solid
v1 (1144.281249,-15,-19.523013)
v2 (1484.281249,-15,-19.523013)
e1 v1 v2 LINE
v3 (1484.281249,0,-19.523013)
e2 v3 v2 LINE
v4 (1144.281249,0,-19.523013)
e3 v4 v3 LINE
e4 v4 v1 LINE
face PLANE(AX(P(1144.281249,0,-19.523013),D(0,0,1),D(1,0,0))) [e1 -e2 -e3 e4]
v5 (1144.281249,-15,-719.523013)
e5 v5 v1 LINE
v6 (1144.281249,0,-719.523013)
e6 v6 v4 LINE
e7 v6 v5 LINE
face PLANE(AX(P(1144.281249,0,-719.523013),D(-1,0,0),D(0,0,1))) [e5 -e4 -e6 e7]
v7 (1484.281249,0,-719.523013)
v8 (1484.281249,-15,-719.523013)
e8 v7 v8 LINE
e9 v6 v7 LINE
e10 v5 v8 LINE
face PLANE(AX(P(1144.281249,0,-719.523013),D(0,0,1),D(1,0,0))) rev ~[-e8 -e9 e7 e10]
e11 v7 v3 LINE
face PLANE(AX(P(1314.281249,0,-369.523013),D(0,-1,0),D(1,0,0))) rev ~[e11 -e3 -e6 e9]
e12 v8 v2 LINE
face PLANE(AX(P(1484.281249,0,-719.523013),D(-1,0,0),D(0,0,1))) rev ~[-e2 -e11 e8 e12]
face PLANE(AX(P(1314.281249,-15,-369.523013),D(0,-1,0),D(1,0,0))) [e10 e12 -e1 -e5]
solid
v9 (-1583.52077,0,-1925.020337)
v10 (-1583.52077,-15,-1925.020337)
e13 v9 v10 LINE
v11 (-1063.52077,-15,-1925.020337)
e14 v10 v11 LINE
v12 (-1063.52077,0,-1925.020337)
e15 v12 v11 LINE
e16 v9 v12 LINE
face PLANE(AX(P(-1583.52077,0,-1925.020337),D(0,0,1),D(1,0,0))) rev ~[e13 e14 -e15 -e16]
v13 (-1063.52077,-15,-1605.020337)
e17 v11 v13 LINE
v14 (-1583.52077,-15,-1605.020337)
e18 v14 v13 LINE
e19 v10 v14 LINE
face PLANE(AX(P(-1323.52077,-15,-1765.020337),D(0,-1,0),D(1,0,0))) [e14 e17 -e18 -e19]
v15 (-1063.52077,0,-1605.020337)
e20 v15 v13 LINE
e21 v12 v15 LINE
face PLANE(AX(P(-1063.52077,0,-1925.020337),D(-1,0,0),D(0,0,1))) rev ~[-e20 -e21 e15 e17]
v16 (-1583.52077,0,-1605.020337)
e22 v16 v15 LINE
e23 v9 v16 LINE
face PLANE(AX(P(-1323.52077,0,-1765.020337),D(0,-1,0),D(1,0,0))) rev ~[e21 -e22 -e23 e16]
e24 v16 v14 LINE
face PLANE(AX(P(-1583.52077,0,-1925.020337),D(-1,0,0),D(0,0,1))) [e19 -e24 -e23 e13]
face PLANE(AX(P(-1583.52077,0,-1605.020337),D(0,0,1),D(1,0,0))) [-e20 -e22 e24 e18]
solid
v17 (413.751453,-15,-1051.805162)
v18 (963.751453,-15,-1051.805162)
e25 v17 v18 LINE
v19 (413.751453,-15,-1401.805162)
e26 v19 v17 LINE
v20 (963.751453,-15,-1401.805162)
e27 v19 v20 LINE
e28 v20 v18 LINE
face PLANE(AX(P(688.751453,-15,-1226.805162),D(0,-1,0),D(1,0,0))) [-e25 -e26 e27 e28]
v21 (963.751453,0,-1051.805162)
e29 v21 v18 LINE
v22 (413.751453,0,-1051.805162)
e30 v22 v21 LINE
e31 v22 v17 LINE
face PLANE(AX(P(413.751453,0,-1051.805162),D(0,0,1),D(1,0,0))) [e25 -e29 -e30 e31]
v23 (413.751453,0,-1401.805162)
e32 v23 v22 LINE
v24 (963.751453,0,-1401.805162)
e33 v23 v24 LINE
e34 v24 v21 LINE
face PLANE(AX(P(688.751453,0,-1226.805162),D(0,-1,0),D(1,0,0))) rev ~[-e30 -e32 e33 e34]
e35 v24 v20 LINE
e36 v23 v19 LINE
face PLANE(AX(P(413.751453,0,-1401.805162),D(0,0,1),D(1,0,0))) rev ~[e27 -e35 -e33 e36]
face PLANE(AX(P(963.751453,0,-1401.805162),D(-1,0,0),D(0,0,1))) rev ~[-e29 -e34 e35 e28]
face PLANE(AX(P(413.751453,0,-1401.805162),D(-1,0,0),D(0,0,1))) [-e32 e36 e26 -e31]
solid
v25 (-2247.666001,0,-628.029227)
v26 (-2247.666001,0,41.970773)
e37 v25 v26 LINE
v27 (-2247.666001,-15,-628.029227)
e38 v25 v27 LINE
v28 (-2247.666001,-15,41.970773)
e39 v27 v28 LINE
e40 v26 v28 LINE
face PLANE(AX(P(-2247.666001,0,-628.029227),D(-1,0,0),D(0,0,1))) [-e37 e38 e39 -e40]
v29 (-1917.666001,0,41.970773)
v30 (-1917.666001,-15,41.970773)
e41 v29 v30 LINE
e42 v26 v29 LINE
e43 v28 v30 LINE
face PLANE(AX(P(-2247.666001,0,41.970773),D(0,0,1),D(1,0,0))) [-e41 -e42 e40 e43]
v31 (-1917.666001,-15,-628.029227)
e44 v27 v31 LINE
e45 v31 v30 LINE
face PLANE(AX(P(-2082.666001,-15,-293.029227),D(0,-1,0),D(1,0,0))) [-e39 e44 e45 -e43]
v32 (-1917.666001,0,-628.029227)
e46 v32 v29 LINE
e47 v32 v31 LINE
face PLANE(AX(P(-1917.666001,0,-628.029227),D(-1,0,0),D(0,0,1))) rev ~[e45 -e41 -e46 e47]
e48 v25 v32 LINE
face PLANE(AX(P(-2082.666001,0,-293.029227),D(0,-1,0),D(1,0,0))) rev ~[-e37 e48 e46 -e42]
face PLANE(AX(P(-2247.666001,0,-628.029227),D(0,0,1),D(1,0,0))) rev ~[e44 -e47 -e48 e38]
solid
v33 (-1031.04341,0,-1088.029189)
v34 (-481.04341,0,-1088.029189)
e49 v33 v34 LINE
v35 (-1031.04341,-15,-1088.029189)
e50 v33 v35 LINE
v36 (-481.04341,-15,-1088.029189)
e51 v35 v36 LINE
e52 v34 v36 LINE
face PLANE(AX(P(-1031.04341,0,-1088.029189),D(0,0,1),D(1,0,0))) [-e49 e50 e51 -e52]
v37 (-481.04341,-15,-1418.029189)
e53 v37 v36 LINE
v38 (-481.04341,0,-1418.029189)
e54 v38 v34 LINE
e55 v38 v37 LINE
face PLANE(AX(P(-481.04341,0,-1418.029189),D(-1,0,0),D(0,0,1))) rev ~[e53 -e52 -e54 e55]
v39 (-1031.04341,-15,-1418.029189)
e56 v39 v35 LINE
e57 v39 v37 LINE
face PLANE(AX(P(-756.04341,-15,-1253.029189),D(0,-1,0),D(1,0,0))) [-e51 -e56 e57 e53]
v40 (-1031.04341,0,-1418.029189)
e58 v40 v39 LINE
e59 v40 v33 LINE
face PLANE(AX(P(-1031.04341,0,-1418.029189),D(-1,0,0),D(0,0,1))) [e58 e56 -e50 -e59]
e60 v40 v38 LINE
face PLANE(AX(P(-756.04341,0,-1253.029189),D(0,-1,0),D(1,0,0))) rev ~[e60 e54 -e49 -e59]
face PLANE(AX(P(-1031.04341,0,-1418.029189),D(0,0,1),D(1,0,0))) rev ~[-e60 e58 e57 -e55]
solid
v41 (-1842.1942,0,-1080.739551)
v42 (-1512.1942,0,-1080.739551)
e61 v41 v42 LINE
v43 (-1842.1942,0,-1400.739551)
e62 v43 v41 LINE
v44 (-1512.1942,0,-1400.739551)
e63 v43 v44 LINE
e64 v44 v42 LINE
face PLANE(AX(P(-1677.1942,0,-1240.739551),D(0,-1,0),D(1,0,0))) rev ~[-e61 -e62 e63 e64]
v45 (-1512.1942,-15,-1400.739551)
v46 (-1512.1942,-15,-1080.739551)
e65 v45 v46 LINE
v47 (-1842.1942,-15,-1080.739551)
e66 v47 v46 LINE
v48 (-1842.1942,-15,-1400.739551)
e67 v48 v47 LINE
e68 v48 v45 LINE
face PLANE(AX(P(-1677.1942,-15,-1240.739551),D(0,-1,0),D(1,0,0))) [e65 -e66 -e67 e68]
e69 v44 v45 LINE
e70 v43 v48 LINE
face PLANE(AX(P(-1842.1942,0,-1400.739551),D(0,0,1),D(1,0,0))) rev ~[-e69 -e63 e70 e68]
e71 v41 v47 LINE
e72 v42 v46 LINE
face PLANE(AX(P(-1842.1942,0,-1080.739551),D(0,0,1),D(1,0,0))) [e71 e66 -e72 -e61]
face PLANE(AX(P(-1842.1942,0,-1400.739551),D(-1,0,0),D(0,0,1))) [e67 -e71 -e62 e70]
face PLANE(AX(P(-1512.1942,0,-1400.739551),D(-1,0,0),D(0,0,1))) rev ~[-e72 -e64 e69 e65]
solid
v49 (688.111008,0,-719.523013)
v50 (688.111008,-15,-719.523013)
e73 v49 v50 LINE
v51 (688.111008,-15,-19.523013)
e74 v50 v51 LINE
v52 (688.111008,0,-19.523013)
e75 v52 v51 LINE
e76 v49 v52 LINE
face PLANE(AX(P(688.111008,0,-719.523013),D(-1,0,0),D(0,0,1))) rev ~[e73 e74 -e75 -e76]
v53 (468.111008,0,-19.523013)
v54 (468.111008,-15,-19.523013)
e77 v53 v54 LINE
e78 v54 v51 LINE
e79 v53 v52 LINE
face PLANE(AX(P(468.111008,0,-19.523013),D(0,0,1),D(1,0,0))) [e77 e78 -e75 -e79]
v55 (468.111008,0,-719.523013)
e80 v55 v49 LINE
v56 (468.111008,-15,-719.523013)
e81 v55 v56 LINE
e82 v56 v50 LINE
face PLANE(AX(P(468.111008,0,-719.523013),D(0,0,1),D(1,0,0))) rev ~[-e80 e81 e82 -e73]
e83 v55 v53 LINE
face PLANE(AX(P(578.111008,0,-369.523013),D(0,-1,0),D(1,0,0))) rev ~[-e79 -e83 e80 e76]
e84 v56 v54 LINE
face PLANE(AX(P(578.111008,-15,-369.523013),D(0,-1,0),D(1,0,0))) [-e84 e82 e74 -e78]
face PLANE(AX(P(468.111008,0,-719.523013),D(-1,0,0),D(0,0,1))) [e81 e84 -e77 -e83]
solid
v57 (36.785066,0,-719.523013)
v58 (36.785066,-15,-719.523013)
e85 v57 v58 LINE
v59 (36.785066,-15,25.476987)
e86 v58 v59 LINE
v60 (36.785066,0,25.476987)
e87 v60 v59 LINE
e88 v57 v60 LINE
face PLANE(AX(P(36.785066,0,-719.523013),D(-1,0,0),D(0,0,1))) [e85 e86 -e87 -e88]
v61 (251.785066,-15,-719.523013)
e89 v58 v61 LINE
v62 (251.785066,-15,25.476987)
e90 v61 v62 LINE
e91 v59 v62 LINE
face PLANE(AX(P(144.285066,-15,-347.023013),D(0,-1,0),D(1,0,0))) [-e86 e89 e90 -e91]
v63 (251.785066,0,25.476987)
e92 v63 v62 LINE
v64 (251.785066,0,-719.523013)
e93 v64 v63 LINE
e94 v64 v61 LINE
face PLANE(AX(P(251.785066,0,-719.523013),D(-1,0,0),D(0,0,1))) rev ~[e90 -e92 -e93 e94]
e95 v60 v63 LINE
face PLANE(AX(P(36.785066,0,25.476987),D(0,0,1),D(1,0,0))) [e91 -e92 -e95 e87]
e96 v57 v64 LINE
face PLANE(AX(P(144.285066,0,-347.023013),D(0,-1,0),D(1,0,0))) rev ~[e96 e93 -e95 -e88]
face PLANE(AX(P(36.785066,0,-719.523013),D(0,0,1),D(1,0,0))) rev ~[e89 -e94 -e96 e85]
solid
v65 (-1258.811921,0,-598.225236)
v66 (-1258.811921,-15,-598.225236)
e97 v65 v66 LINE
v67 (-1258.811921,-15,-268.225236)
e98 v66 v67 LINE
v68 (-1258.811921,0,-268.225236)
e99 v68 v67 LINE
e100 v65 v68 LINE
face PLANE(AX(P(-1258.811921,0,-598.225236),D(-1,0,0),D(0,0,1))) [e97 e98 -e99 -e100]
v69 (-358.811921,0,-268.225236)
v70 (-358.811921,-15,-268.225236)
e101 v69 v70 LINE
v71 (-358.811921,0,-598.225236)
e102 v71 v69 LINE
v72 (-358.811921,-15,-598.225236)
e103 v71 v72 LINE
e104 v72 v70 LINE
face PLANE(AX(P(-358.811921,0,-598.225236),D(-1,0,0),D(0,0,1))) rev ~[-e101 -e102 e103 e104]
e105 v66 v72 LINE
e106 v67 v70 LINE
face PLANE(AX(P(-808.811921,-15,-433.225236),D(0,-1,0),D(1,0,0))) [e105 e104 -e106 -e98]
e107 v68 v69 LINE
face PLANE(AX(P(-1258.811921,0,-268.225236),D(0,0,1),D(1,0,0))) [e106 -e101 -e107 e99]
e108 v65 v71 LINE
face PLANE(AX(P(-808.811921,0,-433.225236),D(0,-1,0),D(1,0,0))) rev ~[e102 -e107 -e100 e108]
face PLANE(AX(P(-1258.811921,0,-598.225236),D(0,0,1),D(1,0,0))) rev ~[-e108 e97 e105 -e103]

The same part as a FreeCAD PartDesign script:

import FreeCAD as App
import Part
import Sketcher
from FreeCAD import Vector

doc = App.newDocument("Part")
body = doc.addObject("PartDesign::Body", "Body")

# Sketch on XZ plane
sketch1 = doc.addObject("Sketcher::SketchObject", "Sketch")
body.addObject(sketch1)
sketch1.AttachmentSupport = (doc.XZ_Plane, [""])
sketch1.MapMode = "FlatFace"
sketch1.addGeometry([
    Part.LineSegment(Vector(1144, -20, 0), Vector(1144, -720, 0)),
    Part.LineSegment(Vector(1144, -720, 0), Vector(1484, -720, 0)),
    Part.LineSegment(Vector(1484, -720, 0), Vector(1484, -20, 0)),
    Part.LineSegment(Vector(1484, -20, 0), Vector(1144, -20, 0)),
], False)
sketch1.addConstraint([
    Sketcher.Constraint("Coincident", 0, 2, 1, 1),
    Sketcher.Constraint("Coincident", 1, 2, 2, 1),
    Sketcher.Constraint("Coincident", 2, 2, 3, 1),
    Sketcher.Constraint("Coincident", 3, 2, 0, 1),
    Sketcher.Constraint("Vertical", 0),
    Sketcher.Constraint("Horizontal", 1),
    Sketcher.Constraint("Vertical", 2),
    Sketcher.Constraint("Horizontal", 3),
    Sketcher.Constraint("DistanceX", 1, 1, 1, 2, 340.0),
    Sketcher.Constraint("DistanceY", 0, 2, 0, 1, 700.0),
    Sketcher.Constraint("DistanceX", -1, 1, 0, 2, 1144.281249),
    Sketcher.Constraint("DistanceY", 0, 2, -1, 1, 719.523013),
])
pad1 = doc.addObject("PartDesign::Pad", "Pad")
body.addObject(pad1)
pad1.Profile = sketch1
pad1.Length = 15
body2 = doc.addObject("PartDesign::Body", "Body001")

# Sketch on XZ plane
sketch2 = doc.addObject("Sketcher::SketchObject", "Sketch001")
body2.addObject(sketch2)
sketch2.AttachmentSupport = (doc.getObject("XZ_Plane001"), [""])
sketch2.MapMode = "FlatFace"
sketch2.addGeometry([
    Part.LineSegment(Vector(468, -20, 0), Vector(468, -720, 0)),
    Part.LineSegment(Vector(468, -720, 0), Vector(688, -720, 0)),
    Part.LineSegment(Vector(688, -720, 0), Vector(688, -20, 0)),
    Part.LineSegment(Vector(688, -20, 0), Vector(468, -20, 0)),
], False)
sketch2.addConstraint([
    Sketcher.Constraint("Coincident", 0, 2, 1, 1),
    Sketcher.Constraint("Coincident", 1, 2, 2, 1),
    Sketcher.Constraint("Coincident", 2, 2, 3, 1),
    Sketcher.Constraint("Coincident", 3, 2, 0, 1),
    Sketcher.Constraint("Vertical", 0),
    Sketcher.Constraint("Horizontal", 1),
    Sketcher.Constraint("Vertical", 2),
    Sketcher.Constraint("Horizontal", 3),
    Sketcher.Constraint("DistanceX", 1, 1, 1, 2, 220.0),
    Sketcher.Constraint("DistanceY", 0, 2, 0, 1, 700.0),
    Sketcher.Constraint("DistanceX", -1, 1, 0, 2, 468.111008),
    Sketcher.Constraint("DistanceY", 0, 2, -1, 1, 719.523013),
])
pad2 = doc.addObject("PartDesign::Pad", "Pad001")
body2.addObject(pad2)
pad2.Profile = sketch2
pad2.Length = 15
body3 = doc.addObject("PartDesign::Body", "Body002")

# Sketch on XZ plane
sketch3 = doc.addObject("Sketcher::SketchObject", "Sketch002")
body3.addObject(sketch3)
sketch3.AttachmentSupport = (doc.getObject("XZ_Plane002"), [""])
sketch3.MapMode = "FlatFace"
sketch3.addGeometry([
    Part.LineSegment(Vector(37, 25, 0), Vector(37, -720, 0)),
    Part.LineSegment(Vector(37, -720, 0), Vector(252, -720, 0)),
    Part.LineSegment(Vector(252, -720, 0), Vector(252, 25, 0)),
    Part.LineSegment(Vector(252, 25, 0), Vector(37, 25, 0)),
], False)
sketch3.addConstraint([
    Sketcher.Constraint("Coincident", 0, 2, 1, 1),
    Sketcher.Constraint("Coincident", 1, 2, 2, 1),
    Sketcher.Constraint("Coincident", 2, 2, 3, 1),
    Sketcher.Constraint("Coincident", 3, 2, 0, 1),
    Sketcher.Constraint("Vertical", 0),
    Sketcher.Constraint("Horizontal", 1),
    Sketcher.Constraint("Vertical", 2),
    Sketcher.Constraint("Horizontal", 3),
    Sketcher.Constraint("DistanceX", 1, 1, 1, 2, 215.0),
    Sketcher.Constraint("DistanceY", 0, 2, 0, 1, 745.0),
    Sketcher.Constraint("DistanceX", -1, 1, 0, 2, 36.785066),
    Sketcher.Constraint("DistanceY", 0, 2, -1, 1, 719.523013),
])
pad3 = doc.addObject("PartDesign::Pad", "Pad002")
body3.addObject(pad3)
pad3.Profile = sketch3
pad3.Length = 15
body4 = doc.addObject("PartDesign::Body", "Body003")

# Sketch on XZ plane
sketch4 = doc.addObject("Sketcher::SketchObject", "Sketch003")
body4.addObject(sketch4)
sketch4.AttachmentSupport = (doc.getObject("XZ_Plane003"), [""])
sketch4.MapMode = "FlatFace"
sketch4.addGeometry([
    Part.LineSegment(Vector(-1259, -268, 0), Vector(-1259, -598, 0)),
    Part.LineSegment(Vector(-1259, -598, 0), Vector(-359, -598, 0)),
    Part.LineSegment(Vector(-359, -598, 0), Vector(-359, -268, 0)),
    Part.LineSegment(Vector(-359, -268, 0), Vector(-1259, -268, 0)),
], False)
sketch4.addConstraint([
    Sketcher.Constraint("Coincident", 0, 2, 1, 1),
    Sketcher.Constraint("Coincident", 1, 2, 2, 1),
    Sketcher.Constraint("Coincident", 2, 2, 3, 1),
    Sketcher.Constraint("Coincident", 3, 2, 0, 1),
    Sketcher.Constraint("Vertical", 0),
    Sketcher.Constraint("Horizontal", 1),
    Sketcher.Constraint("Vertical", 2),
    Sketcher.Constraint("Horizontal", 3),
    Sketcher.Constraint("DistanceX", 1, 1, 1, 2, 900.0),
    Sketcher.Constraint("DistanceY", 0, 2, 0, 1, 330.0),
    Sketcher.Constraint("DistanceX", 0, 2, -1, 1, 1258.811921),
    Sketcher.Constraint("DistanceY", 0, 2, -1, 1, 598.225236),
])
pad4 = doc.addObject("PartDesign::Pad", "Pad003")
body4.addObject(pad4)
pad4.Profile = sketch4
pad4.Length = 15
body5 = doc.addObject("PartDesign::Body", "Body004")

# Sketch on XZ plane
sketch5 = doc.addObject("Sketcher::SketchObject", "Sketch004")
body5.addObject(sketch5)
sketch5.AttachmentSupport = (doc.getObject("XZ_Plane004"), [""])
sketch5.MapMode = "FlatFace"
sketch5.addGeometry([
    Part.LineSegment(Vector(414, -1052, 0), Vector(414, -1402, 0)),
    Part.LineSegment(Vector(414, -1402, 0), Vector(964, -1402, 0)),
    Part.LineSegment(Vector(964, -1402, 0), Vector(964, -1052, 0)),
    Part.LineSegment(Vector(964, -1052, 0), Vector(414, -1052, 0)),
], False)
sketch5.addConstraint([
    Sketcher.Constraint("Coincident", 0, 2, 1, 1),
    Sketcher.Constraint("Coincident", 1, 2, 2, 1),
    Sketcher.Constraint("Coincident", 2, 2, 3, 1),
    Sketcher.Constraint("Coincident", 3, 2, 0, 1),
    Sketcher.Constraint("Vertical", 0),
    Sketcher.Constraint("Horizontal", 1),
    Sketcher.Constraint("Vertical", 2),
    Sketcher.Constraint("Horizontal", 3),
    Sketcher.Constraint("DistanceX", 1, 1, 1, 2, 550.0),
    Sketcher.Constraint("DistanceY", 0, 2, 0, 1, 350.0),
    Sketcher.Constraint("DistanceX", -1, 1, 0, 2, 413.751453),
    Sketcher.Constraint("DistanceY", 0, 2, -1, 1, 1401.805162),
])
pad5 = doc.addObject("PartDesign::Pad", "Pad004")
body5.addObject(pad5)
pad5.Profile = sketch5
pad5.Length = 15
body6 = doc.addObject("PartDesign::Body", "Body005")

# Sketch on XZ plane
sketch6 = doc.addObject("Sketcher::SketchObject", "Sketch005")
body6.addObject(sketch6)
sketch6.AttachmentSupport = (doc.getObject("XZ_Plane005"), [""])
sketch6.MapMode = "FlatFace"
sketch6.addGeometry([
    Part.LineSegment(Vector(-2248, 42, 0), Vector(-2248, -628, 0)),
    Part.LineSegment(Vector(-2248, -628, 0), Vector(-1918, -628, 0)),
    Part.LineSegment(Vector(-1918, -628, 0), Vector(-1918, 42, 0)),
    Part.LineSegment(Vector(-1918, 42, 0), Vector(-2248, 42, 0)),
], False)
sketch6.addConstraint([
    Sketcher.Constraint("Coincident", 0, 2, 1, 1),
    Sketcher.Constraint("Coincident", 1, 2, 2, 1),
    Sketcher.Constraint("Coincident", 2, 2, 3, 1),
    Sketcher.Constraint("Coincident", 3, 2, 0, 1),
    Sketcher.Constraint("Vertical", 0),
    Sketcher.Constraint("Horizontal", 1),
    Sketcher.Constraint("Vertical", 2),
    Sketcher.Constraint("Horizontal", 3),
    Sketcher.Constraint("DistanceX", 1, 1, 1, 2, 330.0),
    Sketcher.Constraint("DistanceY", 0, 2, 0, 1, 670.0),
    Sketcher.Constraint("DistanceX", 0, 2, -1, 1, 2247.666001),
    Sketcher.Constraint("DistanceY", 0, 2, -1, 1, 628.029227),
])
pad6 = doc.addObject("PartDesign::Pad", "Pad005")
body6.addObject(pad6)
pad6.Profile = sketch6
pad6.Length = 15
body7 = doc.addObject("PartDesign::Body", "Body006")

# Sketch on XZ plane
sketch7 = doc.addObject("Sketcher::SketchObject", "Sketch006")
body7.addObject(sketch7)
sketch7.AttachmentSupport = (doc.getObject("XZ_Plane006"), [""])
sketch7.MapMode = "FlatFace"
sketch7.addGeometry([
    Part.LineSegment(Vector(-1031, -1088, 0), Vector(-1031, -1418, 0)),
    Part.LineSegment(Vector(-1031, -1418, 0), Vector(-481, -1418, 0)),
    Part.LineSegment(Vector(-481, -1418, 0), Vector(-481, -1088, 0)),
    Part.LineSegment(Vector(-481, -1088, 0), Vector(-1031, -1088, 0)),
], False)
sketch7.addConstraint([
    Sketcher.Constraint("Coincident", 0, 2, 1, 1),
    Sketcher.Constraint("Coincident", 1, 2, 2, 1),
    Sketcher.Constraint("Coincident", 2, 2, 3, 1),
    Sketcher.Constraint("Coincident", 3, 2, 0, 1),
    Sketcher.Constraint("Vertical", 0),
    Sketcher.Constraint("Horizontal", 1),
    Sketcher.Constraint("Vertical", 2),
    Sketcher.Constraint("Horizontal", 3),
    Sketcher.Constraint("DistanceX", 1, 1, 1, 2, 550.0),
    Sketcher.Constraint("DistanceY", 0, 2, 0, 1, 330.0),
    Sketcher.Constraint("DistanceX", 0, 2, -1, 1, 1031.04341),
    Sketcher.Constraint("DistanceY", 0, 2, -1, 1, 1418.029189),
])
pad7 = doc.addObject("PartDesign::Pad", "Pad006")
body7.addObject(pad7)
pad7.Profile = sketch7
pad7.Length = 15
body8 = doc.addObject("PartDesign::Body", "Body007")

# Sketch on XZ plane
sketch8 = doc.addObject("Sketcher::SketchObject", "Sketch007")
body8.addObject(sketch8)
sketch8.AttachmentSupport = (doc.getObject("XZ_Plane007"), [""])
sketch8.MapMode = "FlatFace"
sketch8.addGeometry([
    Part.LineSegment(Vector(-1842, -1081, 0), Vector(-1842, -1401, 0)),
    Part.LineSegment(Vector(-1842, -1401, 0), Vector(-1512, -1401, 0)),
    Part.LineSegment(Vector(-1512, -1401, 0), Vector(-1512, -1081, 0)),
    Part.LineSegment(Vector(-1512, -1081, 0), Vector(-1842, -1081, 0)),
], False)
sketch8.addConstraint([
    Sketcher.Constraint("Coincident", 0, 2, 1, 1),
    Sketcher.Constraint("Coincident", 1, 2, 2, 1),
    Sketcher.Constraint("Coincident", 2, 2, 3, 1),
    Sketcher.Constraint("Coincident", 3, 2, 0, 1),
    Sketcher.Constraint("Vertical", 0),
    Sketcher.Constraint("Horizontal", 1),
    Sketcher.Constraint("Vertical", 2),
    Sketcher.Constraint("Horizontal", 3),
    Sketcher.Constraint("DistanceX", 1, 1, 1, 2, 330.0),
    Sketcher.Constraint("DistanceY", 0, 2, 0, 1, 320.0),
    Sketcher.Constraint("DistanceX", 0, 2, -1, 1, 1842.1942),
    Sketcher.Constraint("DistanceY", 0, 2, -1, 1, 1400.739551),
])
pad8 = doc.addObject("PartDesign::Pad", "Pad007")
body8.addObject(pad8)
pad8.Profile = sketch8
pad8.Length = 15
body9 = doc.addObject("PartDesign::Body", "Body008")

# Sketch on XZ plane
sketch9 = doc.addObject("Sketcher::SketchObject", "Sketch008")
body9.addObject(sketch9)
sketch9.AttachmentSupport = (doc.getObject("XZ_Plane008"), [""])
sketch9.MapMode = "FlatFace"
sketch9.addGeometry([
    Part.LineSegment(Vector(-1584, -1605, 0), Vector(-1584, -1925, 0)),
    Part.LineSegment(Vector(-1584, -1925, 0), Vector(-1064, -1925, 0)),
    Part.LineSegment(Vector(-1064, -1925, 0), Vector(-1064, -1605, 0)),
    Part.LineSegment(Vector(-1064, -1605, 0), Vector(-1584, -1605, 0)),
], False)
sketch9.addConstraint([
    Sketcher.Constraint("Coincident", 0, 2, 1, 1),
    Sketcher.Constraint("Coincident", 1, 2, 2, 1),
    Sketcher.Constraint("Coincident", 2, 2, 3, 1),
    Sketcher.Constraint("Coincident", 3, 2, 0, 1),
    Sketcher.Constraint("Vertical", 0),
    Sketcher.Constraint("Horizontal", 1),
    Sketcher.Constraint("Vertical", 2),
    Sketcher.Constraint("Horizontal", 3),
    Sketcher.Constraint("DistanceX", 1, 1, 1, 2, 520.0),
    Sketcher.Constraint("DistanceY", 0, 2, 0, 1, 320.0),
    Sketcher.Constraint("DistanceX", 0, 2, -1, 1, 1583.52077),
    Sketcher.Constraint("DistanceY", 0, 2, -1, 1, 1925.020337),
])
pad9 = doc.addObject("PartDesign::Pad", "Pad008")
body9.addObject(pad9)
pad9.Profile = sketch9
pad9.Length = 15

doc.recompute()
